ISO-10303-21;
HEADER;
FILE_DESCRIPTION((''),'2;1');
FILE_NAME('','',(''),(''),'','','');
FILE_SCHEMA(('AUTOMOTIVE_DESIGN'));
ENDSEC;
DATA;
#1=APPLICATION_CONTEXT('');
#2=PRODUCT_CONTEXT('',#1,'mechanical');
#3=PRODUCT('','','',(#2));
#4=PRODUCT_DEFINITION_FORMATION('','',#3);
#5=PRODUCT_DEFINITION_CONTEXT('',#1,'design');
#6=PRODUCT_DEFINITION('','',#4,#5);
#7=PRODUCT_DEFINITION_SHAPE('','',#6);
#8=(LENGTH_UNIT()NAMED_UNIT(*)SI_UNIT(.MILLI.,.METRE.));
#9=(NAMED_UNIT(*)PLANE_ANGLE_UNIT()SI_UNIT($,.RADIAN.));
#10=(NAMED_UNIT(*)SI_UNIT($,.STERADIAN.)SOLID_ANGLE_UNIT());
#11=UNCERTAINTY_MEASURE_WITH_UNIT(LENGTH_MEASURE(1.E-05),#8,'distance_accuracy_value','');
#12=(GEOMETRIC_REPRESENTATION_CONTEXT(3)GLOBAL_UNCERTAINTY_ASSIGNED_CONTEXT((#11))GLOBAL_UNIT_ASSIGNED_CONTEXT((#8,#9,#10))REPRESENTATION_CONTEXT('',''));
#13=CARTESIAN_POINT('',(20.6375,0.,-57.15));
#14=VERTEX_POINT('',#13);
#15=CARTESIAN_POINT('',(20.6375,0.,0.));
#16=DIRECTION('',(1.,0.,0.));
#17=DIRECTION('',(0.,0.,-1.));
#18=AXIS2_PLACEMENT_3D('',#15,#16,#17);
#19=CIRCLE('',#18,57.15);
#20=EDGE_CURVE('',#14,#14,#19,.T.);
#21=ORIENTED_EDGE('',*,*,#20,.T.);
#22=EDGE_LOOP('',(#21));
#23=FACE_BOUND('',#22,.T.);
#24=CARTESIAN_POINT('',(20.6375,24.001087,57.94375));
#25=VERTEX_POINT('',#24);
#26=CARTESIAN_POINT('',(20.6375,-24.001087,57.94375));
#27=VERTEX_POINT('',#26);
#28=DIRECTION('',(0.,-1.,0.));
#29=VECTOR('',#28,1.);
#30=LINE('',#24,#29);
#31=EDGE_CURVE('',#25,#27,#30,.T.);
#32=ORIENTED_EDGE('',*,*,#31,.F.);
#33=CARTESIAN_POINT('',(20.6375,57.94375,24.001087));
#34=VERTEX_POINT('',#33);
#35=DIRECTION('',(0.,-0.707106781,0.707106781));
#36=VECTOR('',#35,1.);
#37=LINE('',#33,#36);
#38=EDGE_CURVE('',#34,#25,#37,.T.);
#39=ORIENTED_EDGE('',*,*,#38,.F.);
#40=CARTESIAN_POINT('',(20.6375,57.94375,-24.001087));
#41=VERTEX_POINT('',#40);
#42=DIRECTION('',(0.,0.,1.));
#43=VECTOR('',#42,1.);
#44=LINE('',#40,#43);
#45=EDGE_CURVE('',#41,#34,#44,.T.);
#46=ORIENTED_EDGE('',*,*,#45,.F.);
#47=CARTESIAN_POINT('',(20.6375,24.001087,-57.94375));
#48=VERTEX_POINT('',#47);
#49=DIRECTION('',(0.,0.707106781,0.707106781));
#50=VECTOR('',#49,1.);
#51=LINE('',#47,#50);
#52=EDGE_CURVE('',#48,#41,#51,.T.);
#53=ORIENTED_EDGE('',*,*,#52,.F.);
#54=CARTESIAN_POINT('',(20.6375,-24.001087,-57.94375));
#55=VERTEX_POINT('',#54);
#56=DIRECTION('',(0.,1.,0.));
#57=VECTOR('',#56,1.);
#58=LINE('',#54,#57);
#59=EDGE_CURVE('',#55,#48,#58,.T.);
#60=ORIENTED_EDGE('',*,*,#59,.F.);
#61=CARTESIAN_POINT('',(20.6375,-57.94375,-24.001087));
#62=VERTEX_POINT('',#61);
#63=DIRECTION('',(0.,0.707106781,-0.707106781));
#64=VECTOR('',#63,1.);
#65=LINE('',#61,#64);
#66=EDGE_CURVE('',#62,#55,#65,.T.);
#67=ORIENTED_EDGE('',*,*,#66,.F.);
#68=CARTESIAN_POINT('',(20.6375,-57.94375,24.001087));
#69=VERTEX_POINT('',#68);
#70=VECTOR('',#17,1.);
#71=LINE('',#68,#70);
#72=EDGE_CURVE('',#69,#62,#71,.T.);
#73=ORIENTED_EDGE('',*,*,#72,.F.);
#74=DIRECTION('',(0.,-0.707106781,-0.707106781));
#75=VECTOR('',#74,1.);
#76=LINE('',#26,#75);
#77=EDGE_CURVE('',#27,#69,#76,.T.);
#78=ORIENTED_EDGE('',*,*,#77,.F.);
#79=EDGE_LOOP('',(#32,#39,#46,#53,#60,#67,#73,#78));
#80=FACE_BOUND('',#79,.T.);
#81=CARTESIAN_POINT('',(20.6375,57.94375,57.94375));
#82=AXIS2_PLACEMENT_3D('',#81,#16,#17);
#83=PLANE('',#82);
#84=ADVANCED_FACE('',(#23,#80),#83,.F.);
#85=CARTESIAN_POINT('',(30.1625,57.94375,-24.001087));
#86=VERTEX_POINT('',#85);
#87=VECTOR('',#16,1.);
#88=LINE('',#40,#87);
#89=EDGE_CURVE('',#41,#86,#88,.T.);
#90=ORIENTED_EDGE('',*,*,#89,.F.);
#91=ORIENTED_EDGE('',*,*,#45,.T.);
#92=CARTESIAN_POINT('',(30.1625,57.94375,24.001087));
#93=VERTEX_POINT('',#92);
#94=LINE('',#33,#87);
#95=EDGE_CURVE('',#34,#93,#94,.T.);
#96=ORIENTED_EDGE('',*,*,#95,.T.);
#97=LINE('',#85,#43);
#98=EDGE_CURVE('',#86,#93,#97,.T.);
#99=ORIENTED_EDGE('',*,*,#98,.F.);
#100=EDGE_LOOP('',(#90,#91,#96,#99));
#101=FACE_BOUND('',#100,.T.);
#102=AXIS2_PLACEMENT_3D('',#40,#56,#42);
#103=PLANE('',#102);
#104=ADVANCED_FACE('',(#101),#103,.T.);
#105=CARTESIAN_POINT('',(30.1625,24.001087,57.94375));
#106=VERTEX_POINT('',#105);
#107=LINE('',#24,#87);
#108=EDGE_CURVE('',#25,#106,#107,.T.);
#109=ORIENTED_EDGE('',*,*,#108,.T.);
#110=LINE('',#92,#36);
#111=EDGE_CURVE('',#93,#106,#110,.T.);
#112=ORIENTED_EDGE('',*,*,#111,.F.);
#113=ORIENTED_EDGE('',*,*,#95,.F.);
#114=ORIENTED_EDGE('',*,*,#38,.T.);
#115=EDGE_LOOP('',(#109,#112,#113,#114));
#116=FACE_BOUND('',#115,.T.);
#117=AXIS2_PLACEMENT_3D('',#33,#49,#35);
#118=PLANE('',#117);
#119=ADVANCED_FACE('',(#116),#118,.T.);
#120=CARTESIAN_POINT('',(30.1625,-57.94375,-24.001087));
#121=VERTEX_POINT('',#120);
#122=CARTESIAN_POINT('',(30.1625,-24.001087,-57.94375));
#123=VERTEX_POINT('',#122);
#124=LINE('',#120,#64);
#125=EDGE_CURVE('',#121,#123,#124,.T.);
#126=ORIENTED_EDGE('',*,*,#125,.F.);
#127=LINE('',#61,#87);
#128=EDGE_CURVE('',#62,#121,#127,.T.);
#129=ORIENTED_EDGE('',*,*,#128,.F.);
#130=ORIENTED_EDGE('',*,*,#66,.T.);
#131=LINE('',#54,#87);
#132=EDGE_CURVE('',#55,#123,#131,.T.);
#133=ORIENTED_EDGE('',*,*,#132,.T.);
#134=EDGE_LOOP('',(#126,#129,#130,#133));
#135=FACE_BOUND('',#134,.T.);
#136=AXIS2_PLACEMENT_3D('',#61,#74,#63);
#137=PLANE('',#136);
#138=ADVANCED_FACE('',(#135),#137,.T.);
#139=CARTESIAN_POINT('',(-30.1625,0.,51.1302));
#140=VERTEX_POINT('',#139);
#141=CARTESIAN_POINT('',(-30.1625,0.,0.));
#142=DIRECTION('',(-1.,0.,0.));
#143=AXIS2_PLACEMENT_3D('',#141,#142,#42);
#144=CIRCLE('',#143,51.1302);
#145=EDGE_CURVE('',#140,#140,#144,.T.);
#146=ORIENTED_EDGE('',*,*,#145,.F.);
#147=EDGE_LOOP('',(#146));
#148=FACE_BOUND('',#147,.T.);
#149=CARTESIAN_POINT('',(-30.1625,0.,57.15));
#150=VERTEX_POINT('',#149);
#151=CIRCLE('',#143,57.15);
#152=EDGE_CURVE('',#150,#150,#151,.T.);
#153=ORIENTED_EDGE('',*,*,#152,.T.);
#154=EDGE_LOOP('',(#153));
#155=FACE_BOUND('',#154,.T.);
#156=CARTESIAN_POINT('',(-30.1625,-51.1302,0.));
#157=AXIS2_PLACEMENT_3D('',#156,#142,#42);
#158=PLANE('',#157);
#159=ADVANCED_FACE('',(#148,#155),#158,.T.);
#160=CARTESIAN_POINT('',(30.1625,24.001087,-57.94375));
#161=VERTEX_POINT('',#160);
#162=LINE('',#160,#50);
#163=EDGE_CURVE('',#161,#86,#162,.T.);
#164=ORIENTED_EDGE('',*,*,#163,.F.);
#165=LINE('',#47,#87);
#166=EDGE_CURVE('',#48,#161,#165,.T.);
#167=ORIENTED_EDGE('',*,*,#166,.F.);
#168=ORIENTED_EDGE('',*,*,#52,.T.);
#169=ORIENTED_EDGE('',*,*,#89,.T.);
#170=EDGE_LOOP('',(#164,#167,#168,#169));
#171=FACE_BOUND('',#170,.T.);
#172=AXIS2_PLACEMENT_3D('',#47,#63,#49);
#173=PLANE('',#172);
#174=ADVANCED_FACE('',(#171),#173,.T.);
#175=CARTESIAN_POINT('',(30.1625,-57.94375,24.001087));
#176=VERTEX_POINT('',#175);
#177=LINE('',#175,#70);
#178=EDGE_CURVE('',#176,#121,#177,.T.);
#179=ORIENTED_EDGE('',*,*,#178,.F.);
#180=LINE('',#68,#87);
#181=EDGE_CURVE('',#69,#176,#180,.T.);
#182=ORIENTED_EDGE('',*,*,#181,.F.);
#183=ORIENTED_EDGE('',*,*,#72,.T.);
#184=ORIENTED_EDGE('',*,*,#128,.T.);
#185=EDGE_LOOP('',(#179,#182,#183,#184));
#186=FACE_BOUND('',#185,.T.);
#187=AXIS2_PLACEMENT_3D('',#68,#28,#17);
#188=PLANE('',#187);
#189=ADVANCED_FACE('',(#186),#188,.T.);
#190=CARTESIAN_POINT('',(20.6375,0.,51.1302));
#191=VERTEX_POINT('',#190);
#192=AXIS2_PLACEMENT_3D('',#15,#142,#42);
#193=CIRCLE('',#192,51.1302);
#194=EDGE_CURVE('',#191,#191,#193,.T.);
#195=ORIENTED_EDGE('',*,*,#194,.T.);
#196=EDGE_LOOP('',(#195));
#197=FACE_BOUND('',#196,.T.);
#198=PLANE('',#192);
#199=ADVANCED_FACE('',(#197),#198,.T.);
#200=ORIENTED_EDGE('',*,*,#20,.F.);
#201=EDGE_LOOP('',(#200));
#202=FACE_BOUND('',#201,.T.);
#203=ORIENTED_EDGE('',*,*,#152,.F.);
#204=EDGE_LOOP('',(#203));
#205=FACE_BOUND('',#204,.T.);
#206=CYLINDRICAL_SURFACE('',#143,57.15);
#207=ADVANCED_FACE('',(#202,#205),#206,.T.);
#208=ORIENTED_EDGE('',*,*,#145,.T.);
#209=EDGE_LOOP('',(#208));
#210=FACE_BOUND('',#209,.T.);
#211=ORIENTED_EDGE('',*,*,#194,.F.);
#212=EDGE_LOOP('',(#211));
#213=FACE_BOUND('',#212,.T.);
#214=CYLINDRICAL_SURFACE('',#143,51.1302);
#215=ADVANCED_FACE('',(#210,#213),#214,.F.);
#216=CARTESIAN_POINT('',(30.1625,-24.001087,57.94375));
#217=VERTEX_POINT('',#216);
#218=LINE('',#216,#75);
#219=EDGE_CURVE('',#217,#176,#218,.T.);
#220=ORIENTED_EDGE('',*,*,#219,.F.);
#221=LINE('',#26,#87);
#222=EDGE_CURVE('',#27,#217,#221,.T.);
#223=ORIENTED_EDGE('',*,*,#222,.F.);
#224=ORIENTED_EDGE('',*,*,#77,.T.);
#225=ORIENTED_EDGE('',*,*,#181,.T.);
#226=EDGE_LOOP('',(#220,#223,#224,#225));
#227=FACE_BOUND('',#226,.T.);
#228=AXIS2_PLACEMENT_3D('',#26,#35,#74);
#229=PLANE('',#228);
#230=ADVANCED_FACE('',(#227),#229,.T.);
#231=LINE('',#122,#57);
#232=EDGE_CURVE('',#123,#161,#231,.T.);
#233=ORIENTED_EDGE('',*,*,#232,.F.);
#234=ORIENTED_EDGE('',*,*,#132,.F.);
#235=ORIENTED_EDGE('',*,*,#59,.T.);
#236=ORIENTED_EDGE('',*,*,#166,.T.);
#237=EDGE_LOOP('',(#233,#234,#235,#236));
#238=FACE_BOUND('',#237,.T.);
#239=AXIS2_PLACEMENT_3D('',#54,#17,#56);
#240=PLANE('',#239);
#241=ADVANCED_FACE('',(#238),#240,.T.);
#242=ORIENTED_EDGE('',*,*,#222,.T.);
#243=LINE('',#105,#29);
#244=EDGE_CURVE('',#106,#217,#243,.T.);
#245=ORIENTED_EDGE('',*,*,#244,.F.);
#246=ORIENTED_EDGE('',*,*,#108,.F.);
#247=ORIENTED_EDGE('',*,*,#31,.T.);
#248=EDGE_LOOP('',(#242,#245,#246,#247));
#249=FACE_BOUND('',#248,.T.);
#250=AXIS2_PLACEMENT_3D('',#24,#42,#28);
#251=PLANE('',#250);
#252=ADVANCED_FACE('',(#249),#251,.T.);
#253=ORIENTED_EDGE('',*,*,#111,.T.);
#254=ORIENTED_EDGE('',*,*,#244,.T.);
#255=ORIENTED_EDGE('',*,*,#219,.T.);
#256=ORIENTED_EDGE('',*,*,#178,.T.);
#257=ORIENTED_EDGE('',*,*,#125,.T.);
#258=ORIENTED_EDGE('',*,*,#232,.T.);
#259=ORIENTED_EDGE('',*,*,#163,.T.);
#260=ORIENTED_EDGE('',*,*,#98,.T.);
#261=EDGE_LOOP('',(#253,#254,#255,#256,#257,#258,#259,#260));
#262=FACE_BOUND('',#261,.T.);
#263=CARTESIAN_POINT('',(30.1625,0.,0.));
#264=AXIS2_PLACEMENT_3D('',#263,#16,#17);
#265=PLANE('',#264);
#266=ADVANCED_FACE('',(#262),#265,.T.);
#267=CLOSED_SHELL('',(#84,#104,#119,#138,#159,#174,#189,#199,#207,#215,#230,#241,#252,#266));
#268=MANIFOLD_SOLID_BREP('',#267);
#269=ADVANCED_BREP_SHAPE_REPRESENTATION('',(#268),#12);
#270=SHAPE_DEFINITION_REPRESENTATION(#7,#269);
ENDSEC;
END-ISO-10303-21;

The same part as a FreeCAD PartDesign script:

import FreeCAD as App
import Part
import Sketcher
from FreeCAD import Vector
Q = App.Units.Quantity

doc = App.newDocument("Part")
body = doc.addObject("PartDesign::Body", "Body")

# Sketch on XY plane
sketch1 = body.newObject("Sketcher::SketchObject", "Sketch")
sketch1.AttachmentSupport = (doc.getObject("XY_Plane"), [""])
sketch1.MapMode = "FlatFace"
sketch1.addGeometry(Part.LineSegment(Vector(-30, -57, 0), Vector(30, -57, 0)), False)
sketch1.addGeometry(Part.LineSegment(Vector(30, -57, 0), Vector(30, 0, 0)), False)
sketch1.addGeometry(Part.LineSegment(Vector(30, 0, 0), Vector(21, 0, 0)), False)
sketch1.addGeometry(Part.LineSegment(Vector(21, 0, 0), Vector(21, -51, 0)), False)
sketch1.addGeometry(Part.LineSegment(Vector(21, -51, 0), Vector(-30, -51, 0)), False)
sketch1.addGeometry(Part.LineSegment(Vector(-30, -51, 0), Vector(-30, -57, 0)), False)
sketch1.addConstraint(Sketcher.Constraint("Coincident", 0, 2, 1, 1))
sketch1.addConstraint(Sketcher.Constraint("Coincident", 1, 2, 2, 1))
sketch1.addConstraint(Sketcher.Constraint("Coincident", 2, 2, 3, 1))
sketch1.addConstraint(Sketcher.Constraint("Coincident", 3, 2, 4, 1))
sketch1.addConstraint(Sketcher.Constraint("Coincident", 4, 2, 5, 1))
sketch1.addConstraint(Sketcher.Constraint("Coincident", 5, 2, 0, 1))
sketch1.addConstraint(Sketcher.Constraint("Horizontal", 0))
sketch1.addConstraint(Sketcher.Constraint("Vertical", 1))
sketch1.addConstraint(Sketcher.Constraint("Horizontal", 2))
sketch1.addConstraint(Sketcher.Constraint("Vertical", 3))
sketch1.addConstraint(Sketcher.Constraint("Horizontal", 4))
sketch1.addConstraint(Sketcher.Constraint("Vertical", 5))
sketch1.addConstraint(Sketcher.Constraint("PointOnObject", 1, 2, -1))
sketch1.addConstraint(Sketcher.Constraint("DistanceX", 4, 2, 4, 1, Q("2 in")))
sketch1.addConstraint(Sketcher.Constraint("DistanceY", 1, 1, 1, 2, Q("2.25 in")))
sketch1.addConstraint(Sketcher.Constraint("DistanceX", 0, 1, 0, 2, Q("2.375 in")))
sketch1.addConstraint(Sketcher.Constraint("DistanceY", 3, 2, 3, 1, Q("2.013 in")))
sketch1.addConstraint(Sketcher.Constraint("DistanceX", -1, 1, 0, 2, Q("1.1875 in")))
revolution = body.newObject("PartDesign::Revolution", "Revolution")
revolution.Profile = sketch1
revolution.ReferenceAxis = (sketch1, ["H_Axis"])
revolution.Angle = 360

# Sketch on YZ plane
sketch2 = body.newObject("Sketcher::SketchObject", "Sketch001")
sketch2.AttachmentSupport = (doc.getObject("YZ_Plane"), [""])
sketch2.MapMode = "FlatFace"
sketch2.AttachmentOffset = App.Placement(Vector(0, 0, 1.1875 * 25.4), App.Rotation())
sketch2.addGeometry(Part.LineSegment(Vector(58, 24, 0), Vector(24, 58, 0)), False)
sketch2.addGeometry(Part.LineSegment(Vector(24, 58, 0), Vector(-24, 58, 0)), False)
sketch2.addGeometry(Part.LineSegment(Vector(-24, 58, 0), Vector(-58, 24, 0)), False)
sketch2.addGeometry(Part.LineSegment(Vector(-58, 24, 0), Vector(-58, -24, 0)), False)
sketch2.addGeometry(Part.LineSegment(Vector(-58, -24, 0), Vector(-24, -58, 0)), False)
sketch2.addGeometry(Part.LineSegment(Vector(-24, -58, 0), Vector(24, -58, 0)), False)
sketch2.addGeometry(Part.LineSegment(Vector(24, -58, 0), Vector(58, -24, 0)), False)
sketch2.addGeometry(Part.LineSegment(Vector(58, -24, 0), Vector(58, 24, 0)), False)
sketch2.addGeometry(Part.Circle(Vector(0, 0, 0), Vector(0, 0, 1), 57), False)
sketch2.addConstraint(Sketcher.Constraint("Coincident", 0, 2, 1, 1))
sketch2.addConstraint(Sketcher.Constraint("Coincident", 1, 2, 2, 1))
sketch2.addConstraint(Sketcher.Constraint("Coincident", 2, 2, 3, 1))
sketch2.addConstraint(Sketcher.Constraint("Coincident", 3, 2, 4, 1))
sketch2.addConstraint(Sketcher.Constraint("Coincident", 4, 2, 5, 1))
sketch2.addConstraint(Sketcher.Constraint("Coincident", 5, 2, 6, 1))
sketch2.addConstraint(Sketcher.Constraint("Coincident", 6, 2, 7, 1))
sketch2.addConstraint(Sketcher.Constraint("Coincident", 7, 2, 0, 1))
sketch2.addConstraint(Sketcher.Constraint("Horizontal", 1))
sketch2.addConstraint(Sketcher.Constraint("Vertical", 3))
sketch2.addConstraint(Sketcher.Constraint("Horizontal", 5))
sketch2.addConstraint(Sketcher.Constraint("Vertical", 7))
sketch2.addConstraint(Sketcher.Constraint("Coincident", 8, 3, -1, 1))
sketch2.addConstraint(Sketcher.Constraint("Symmetric", 0, 2, 4, 2, -1, 1))
sketch2.addConstraint(Sketcher.Constraint("Symmetric", 2, 2, 6, 2, -1, 1))
sketch2.addConstraint(Sketcher.Constraint("Perpendicular", 0, 2))
sketch2.addConstraint(Sketcher.Constraint("Perpendicular", 2, 4))
sketch2.addConstraint(Sketcher.Constraint("Perpendicular", 4, 6))
sketch2.addConstraint(Sketcher.Constraint("Horizontal", 3, 2, 6, 2))
sketch2.addConstraint(Sketcher.Constraint("Vertical", 1, 2, 4, 2))
sketch2.addConstraint(Sketcher.Constraint("Equal", 5, 3))
sketch2.addConstraint(Sketcher.Constraint("Diameter", 8, Q("4.5 in")))
sketch2.addConstraint(Sketcher.Constraint("DistanceY", -1, 1, 0, 2, Q("2.28125 in")))
sketch2.addConstraint(Sketcher.Constraint("DistanceX", 1, 2, 1, 1, 48.002174))
pad1 = body.newObject("PartDesign::Pad", "Pad")
pad1.Profile = sketch2
pad1.Length = Q("0.375 in")
pad1.Reversed = True

doc.recompute()
